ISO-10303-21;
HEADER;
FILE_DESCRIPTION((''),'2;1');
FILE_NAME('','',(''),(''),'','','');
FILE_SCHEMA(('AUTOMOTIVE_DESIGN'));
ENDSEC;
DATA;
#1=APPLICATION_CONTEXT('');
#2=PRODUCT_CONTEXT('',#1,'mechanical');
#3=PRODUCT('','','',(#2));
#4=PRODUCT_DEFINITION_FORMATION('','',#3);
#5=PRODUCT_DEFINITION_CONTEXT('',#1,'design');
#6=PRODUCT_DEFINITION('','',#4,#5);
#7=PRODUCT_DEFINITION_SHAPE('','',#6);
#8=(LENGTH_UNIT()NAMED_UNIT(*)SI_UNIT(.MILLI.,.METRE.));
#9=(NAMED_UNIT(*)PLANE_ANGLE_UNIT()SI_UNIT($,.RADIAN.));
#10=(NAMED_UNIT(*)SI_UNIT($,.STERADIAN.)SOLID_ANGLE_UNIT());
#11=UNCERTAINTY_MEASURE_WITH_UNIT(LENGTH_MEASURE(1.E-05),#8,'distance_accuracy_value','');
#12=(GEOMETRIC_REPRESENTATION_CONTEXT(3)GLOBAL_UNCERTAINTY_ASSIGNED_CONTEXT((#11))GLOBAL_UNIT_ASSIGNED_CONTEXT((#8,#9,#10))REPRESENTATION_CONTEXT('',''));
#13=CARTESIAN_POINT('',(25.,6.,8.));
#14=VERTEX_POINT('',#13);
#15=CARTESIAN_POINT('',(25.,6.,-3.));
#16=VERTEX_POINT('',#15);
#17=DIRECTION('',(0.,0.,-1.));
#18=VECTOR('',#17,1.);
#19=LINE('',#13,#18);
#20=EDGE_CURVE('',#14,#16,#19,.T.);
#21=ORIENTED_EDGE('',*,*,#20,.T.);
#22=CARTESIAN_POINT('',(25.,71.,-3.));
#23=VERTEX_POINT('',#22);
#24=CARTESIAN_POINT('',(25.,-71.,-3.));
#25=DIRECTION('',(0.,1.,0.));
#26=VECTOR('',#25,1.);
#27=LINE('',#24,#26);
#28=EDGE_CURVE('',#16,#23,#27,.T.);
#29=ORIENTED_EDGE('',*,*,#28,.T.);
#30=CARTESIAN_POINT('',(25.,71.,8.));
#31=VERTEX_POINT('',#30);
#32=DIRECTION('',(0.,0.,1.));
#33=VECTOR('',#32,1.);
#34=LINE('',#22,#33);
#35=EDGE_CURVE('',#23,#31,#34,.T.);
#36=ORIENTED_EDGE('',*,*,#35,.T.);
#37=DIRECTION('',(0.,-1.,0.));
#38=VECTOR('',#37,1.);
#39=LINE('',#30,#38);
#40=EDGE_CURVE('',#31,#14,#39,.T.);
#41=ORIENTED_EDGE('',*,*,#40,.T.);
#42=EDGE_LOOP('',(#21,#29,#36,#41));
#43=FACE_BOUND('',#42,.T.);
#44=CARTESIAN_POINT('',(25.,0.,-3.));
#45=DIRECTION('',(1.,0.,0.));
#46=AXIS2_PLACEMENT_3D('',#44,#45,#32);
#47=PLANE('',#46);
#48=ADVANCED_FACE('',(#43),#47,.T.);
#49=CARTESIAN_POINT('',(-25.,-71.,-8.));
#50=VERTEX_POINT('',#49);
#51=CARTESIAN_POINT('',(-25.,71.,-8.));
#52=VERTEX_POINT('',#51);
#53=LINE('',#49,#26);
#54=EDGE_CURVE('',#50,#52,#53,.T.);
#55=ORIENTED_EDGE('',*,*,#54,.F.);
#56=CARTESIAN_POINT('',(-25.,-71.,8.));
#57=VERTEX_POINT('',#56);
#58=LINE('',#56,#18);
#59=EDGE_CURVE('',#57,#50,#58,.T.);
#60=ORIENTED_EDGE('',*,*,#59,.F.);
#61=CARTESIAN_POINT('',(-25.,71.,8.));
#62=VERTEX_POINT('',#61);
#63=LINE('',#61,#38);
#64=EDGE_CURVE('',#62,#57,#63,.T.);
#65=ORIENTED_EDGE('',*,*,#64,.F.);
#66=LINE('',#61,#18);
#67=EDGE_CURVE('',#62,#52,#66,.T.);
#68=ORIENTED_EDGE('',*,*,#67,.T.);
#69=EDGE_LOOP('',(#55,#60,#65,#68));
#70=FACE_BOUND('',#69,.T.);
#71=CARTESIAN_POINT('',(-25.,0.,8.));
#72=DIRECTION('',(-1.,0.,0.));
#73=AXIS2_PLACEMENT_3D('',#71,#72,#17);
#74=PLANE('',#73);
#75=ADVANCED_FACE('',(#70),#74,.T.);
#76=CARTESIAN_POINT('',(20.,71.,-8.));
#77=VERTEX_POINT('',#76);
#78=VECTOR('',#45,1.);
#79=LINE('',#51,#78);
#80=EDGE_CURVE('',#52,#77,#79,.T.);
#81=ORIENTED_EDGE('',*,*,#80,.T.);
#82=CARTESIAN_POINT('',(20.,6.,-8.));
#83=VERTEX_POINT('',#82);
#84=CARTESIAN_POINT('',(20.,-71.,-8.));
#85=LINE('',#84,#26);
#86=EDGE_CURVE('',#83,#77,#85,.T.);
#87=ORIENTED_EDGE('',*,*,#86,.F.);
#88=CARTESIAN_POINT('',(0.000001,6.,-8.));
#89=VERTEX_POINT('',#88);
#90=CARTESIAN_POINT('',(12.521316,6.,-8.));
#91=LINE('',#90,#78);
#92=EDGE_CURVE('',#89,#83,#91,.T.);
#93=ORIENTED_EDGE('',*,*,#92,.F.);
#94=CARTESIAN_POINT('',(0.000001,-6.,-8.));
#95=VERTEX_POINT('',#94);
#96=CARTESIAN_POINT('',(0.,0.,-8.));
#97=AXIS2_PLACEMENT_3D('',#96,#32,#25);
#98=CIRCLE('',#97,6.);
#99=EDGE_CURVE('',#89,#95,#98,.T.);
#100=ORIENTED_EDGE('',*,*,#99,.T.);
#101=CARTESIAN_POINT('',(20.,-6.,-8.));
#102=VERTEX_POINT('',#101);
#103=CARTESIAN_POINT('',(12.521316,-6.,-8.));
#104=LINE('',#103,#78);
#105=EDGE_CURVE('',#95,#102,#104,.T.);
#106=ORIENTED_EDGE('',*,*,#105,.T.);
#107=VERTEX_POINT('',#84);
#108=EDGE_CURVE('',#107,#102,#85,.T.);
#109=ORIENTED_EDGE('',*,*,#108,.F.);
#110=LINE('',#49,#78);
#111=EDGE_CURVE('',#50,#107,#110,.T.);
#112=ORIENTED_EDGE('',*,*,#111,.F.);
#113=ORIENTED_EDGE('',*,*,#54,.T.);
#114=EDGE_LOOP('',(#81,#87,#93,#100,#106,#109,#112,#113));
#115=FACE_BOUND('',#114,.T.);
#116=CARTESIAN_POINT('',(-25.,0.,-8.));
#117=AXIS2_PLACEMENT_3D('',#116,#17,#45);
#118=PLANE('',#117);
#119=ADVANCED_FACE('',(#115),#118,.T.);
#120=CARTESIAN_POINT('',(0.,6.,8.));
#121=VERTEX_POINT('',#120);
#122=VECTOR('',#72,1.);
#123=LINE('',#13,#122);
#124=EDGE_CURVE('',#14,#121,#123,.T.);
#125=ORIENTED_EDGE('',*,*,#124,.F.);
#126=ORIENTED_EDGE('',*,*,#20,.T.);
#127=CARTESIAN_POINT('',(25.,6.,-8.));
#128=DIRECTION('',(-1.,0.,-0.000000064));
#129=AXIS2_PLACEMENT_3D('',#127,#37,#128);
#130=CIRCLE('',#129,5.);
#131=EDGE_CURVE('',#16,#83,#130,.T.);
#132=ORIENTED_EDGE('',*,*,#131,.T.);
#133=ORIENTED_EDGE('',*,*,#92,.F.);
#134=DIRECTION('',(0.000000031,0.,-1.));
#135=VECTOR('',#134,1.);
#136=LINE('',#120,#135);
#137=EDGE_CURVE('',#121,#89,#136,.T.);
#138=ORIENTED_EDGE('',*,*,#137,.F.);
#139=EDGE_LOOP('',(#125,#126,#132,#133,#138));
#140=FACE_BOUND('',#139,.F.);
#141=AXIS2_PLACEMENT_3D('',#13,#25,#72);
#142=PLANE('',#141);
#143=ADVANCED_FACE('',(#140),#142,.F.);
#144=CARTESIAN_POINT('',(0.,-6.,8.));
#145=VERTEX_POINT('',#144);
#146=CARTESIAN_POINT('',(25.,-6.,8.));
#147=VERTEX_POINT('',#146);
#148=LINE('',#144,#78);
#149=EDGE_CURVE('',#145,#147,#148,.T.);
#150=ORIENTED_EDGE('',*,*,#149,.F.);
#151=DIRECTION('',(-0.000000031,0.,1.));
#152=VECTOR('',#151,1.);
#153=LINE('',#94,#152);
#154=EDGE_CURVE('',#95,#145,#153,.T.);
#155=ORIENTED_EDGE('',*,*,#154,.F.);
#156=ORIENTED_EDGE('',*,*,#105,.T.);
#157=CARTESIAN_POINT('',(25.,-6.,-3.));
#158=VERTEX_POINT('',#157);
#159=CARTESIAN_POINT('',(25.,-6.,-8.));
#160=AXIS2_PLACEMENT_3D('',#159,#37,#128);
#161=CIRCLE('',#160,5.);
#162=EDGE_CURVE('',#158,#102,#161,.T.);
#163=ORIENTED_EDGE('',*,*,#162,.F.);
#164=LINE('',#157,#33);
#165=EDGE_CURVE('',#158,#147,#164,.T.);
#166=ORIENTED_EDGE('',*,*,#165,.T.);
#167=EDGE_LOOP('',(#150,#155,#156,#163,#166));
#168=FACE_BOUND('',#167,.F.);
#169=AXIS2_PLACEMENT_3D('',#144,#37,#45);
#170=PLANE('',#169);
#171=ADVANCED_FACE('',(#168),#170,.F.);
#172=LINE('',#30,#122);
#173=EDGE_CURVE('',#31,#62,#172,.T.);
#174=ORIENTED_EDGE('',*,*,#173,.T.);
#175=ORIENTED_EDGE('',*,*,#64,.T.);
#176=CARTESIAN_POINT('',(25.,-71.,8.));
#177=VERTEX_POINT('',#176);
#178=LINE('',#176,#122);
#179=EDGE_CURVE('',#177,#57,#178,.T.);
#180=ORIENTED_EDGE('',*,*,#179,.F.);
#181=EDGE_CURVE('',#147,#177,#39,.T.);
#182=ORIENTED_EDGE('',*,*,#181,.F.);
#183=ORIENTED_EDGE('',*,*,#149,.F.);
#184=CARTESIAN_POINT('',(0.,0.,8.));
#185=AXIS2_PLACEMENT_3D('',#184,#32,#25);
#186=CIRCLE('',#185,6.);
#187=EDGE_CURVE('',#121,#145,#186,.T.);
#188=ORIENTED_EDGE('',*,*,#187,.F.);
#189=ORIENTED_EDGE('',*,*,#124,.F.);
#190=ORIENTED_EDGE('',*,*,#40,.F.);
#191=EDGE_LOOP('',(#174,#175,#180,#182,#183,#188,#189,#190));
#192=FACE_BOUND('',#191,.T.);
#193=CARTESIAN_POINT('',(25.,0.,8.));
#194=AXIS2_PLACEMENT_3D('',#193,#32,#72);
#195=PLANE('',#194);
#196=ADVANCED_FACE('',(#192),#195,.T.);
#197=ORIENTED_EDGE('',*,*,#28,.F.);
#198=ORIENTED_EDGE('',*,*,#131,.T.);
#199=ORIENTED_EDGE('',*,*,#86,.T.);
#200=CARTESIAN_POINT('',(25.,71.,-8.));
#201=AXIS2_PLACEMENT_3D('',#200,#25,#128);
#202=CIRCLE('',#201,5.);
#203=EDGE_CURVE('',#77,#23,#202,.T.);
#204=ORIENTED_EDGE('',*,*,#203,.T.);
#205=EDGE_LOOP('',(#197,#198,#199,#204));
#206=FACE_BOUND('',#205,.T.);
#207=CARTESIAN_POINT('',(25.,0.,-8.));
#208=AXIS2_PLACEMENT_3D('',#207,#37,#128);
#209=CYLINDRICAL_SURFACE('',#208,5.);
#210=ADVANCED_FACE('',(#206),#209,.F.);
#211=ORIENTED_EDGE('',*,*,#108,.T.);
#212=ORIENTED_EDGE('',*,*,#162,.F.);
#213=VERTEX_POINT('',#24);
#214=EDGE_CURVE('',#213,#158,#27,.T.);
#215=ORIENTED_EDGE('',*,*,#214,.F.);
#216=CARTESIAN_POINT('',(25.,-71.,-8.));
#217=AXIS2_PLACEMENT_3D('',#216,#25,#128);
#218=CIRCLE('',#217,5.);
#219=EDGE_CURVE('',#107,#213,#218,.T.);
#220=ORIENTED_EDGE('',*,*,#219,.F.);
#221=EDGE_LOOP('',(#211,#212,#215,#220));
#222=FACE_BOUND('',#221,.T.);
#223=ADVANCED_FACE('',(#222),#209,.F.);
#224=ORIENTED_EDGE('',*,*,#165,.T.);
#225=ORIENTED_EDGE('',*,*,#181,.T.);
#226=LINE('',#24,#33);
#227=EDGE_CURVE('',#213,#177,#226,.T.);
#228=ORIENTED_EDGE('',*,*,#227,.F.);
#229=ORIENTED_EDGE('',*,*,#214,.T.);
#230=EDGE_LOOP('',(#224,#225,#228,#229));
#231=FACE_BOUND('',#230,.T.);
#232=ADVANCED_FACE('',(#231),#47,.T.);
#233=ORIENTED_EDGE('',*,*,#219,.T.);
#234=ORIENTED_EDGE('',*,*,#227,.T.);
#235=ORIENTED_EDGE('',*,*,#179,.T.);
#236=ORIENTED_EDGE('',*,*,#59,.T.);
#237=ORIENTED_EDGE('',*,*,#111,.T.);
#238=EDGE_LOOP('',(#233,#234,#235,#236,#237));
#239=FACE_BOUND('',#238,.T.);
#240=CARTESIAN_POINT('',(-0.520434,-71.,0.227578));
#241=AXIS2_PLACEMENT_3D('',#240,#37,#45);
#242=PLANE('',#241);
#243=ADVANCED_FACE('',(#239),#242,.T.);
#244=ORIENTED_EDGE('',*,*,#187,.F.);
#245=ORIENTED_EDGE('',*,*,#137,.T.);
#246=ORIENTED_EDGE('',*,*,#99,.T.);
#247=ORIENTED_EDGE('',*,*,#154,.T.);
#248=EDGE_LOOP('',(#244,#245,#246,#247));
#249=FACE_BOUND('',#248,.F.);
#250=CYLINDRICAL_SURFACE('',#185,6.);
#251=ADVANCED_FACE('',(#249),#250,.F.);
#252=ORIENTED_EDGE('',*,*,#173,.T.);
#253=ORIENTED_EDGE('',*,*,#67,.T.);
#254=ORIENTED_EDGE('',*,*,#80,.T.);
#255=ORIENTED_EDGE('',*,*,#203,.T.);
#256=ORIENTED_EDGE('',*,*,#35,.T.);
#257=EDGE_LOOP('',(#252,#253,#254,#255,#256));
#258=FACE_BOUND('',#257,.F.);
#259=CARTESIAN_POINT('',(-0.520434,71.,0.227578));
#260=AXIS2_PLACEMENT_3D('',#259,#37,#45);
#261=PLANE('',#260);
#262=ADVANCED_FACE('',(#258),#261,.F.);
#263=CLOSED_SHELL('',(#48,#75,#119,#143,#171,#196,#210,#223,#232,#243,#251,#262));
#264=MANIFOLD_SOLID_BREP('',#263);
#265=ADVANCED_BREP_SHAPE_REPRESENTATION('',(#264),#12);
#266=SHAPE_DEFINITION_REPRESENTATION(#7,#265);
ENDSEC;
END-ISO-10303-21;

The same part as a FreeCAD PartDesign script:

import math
import FreeCAD as App
import Part
import Sketcher

V = App.Vector

doc = App.newDocument("Part")
body = doc.addObject("PartDesign::Body", "Body")

# Sketch on XZ plane
sketch1 = body.newObject("Sketcher::SketchObject", "Sketch")
sketch1.AttachmentSupport = (doc.getObject("XZ_Plane"), [""])
sketch1.MapMode = "FlatFace"
sketch1.addGeometry([
    Part.LineSegment(V(25, -3, 0), V(25, 8, 0)),  # 0
    Part.LineSegment(V(25, 8, 0), V(-25, 8, 0)),  # 1
    Part.LineSegment(V(-25, 8, 0), V(-25, -8, 0)),  # 2
    Part.LineSegment(V(-25, -8, 0), V(20, -8, 0)),  # 3
    Part.ArcOfCircle(Part.Circle(V(25, -8, 0), V(0, 0, 1), 5), math.radians(89.999996), math.radians(180.000004)),  # 4
], False)
sketch1.addConstraint([
    Sketcher.Constraint("Coincident", 0, 2, 1, 1),
    Sketcher.Constraint("Coincident", 1, 2, 2, 1),
    Sketcher.Constraint("Coincident", 2, 2, 3, 1),
    Sketcher.Constraint("Coincident", 3, 2, 4, 2),
    Sketcher.Constraint("Coincident", 4, 1, 0, 1),
    Sketcher.Constraint("Vertical", 0),
    Sketcher.Constraint("Horizontal", 1),
    Sketcher.Constraint("Vertical", 2),
    Sketcher.Constraint("Horizontal", 3),
    Sketcher.Constraint("Symmetric", 0, 2, 2, 2, -1, 1),
    Sketcher.Constraint("Horizontal", 4, 3, 2, 2),
    Sketcher.Constraint("Vertical", 4, 3, 0, 2),
    Sketcher.Constraint("Radius", 4, 5.0),
    Sketcher.Constraint("DistanceX", 1, 2, 1, 1, 50.0),
    Sketcher.Constraint("DistanceY", 0, 1, 0, 2, 11.0),
])
pad1 = body.newObject("PartDesign::Pad", "Pad")
pad1.Profile = sketch1
pad1.Length = 142
pad1.Midplane = True

# Sketch on XY plane
sketch2 = body.newObject("Sketcher::SketchObject", "Sketch001")
sketch2.AttachmentSupport = (doc.getObject("XY_Plane"), [""])
sketch2.MapMode = "FlatFace"
sketch2.AttachmentOffset = App.Placement(V(0, 0, 8), App.Rotation())
sketch2.addGeometry([
    Part.ArcOfCircle(Part.Circle(V(0.000001, -0.000001, 0), V(0, 0, 1), 5.999999), math.radians(-90.00001), math.radians(0.00001)),
    Part.ArcOfCircle(Part.Circle(V(0.000001, 0.000001, 0), V(0, 0, 1), 5.999999), math.radians(-0.00001), math.radians(90.00001)),
    Part.ArcOfCircle(Part.Circle(V(0, 0, 0), V(0, 0, 1), 6), math.radians(90), math.radians(270)),
], False)
sketch2.addConstraint([
    Sketcher.Constraint("Tangent", 0, 2, 1, 1),
    Sketcher.Constraint("Tangent", 1, 2, 2, 1),
    Sketcher.Constraint("Tangent", 2, 2, 0, 1),
    Sketcher.Constraint("Coincident", 0, 3, -1, 1),
    Sketcher.Constraint("PointOnObject", 0, 2, -1),
    Sketcher.Constraint("PointOnObject", 1, 2, -2),
    Sketcher.Constraint("PointOnObject", 2, 2, -2),
    Sketcher.Constraint("Radius", 0, 5.999999),
])
pocket1 = body.newObject("PartDesign::Pocket", "Pocket")
pocket1.Profile = sketch2
pocket1.Length = 16

# Sketch on XY plane
sketch3 = body.newObject("Sketcher::SketchObject", "Sketch002")
sketch3.AttachmentSupport = (doc.getObject("XY_Plane"), [""])
sketch3.MapMode = "FlatFace"
sketch3.AttachmentOffset = App.Placement(V(0, 0, 8), App.Rotation())
sketch3.addGeometry([
    Part.ArcOfCircle(Part.Circle(V(0.000001, 0.000001, 0), V(0, 0, 1), 5.999999), math.radians(-0.00001), math.radians(90.00001)),  # 0
    Part.ArcOfCircle(Part.Circle(V(0.000001, -0.000001, 0), V(0, 0, 1), 5.999999), math.radians(-90.00001), math.radians(0.00001)),  # 1
    Part.LineSegment(V(0, -6, 0), V(25, -6, 0)),  # 2
    Part.LineSegment(V(25, -6, 0), V(25, 6, 0)),  # 3
    Part.LineSegment(V(25, 6, 0), V(0, 6, 0)),  # 4
], False)
sketch3.addConstraint([
    Sketcher.Constraint("Tangent", 0, 1, 1, 2),
    Sketcher.Constraint("Tangent", 1, 1, 2, 1),
    Sketcher.Constraint("Coincident", 2, 2, 3, 1),
    Sketcher.Constraint("Coincident", 3, 2, 4, 1),
    Sketcher.Constraint("Tangent", 4, 2, 0, 2),
    Sketcher.Constraint("Horizontal", 2),
    Sketcher.Constraint("Vertical", 3),
    Sketcher.Constraint("Horizontal", 4),
    Sketcher.Constraint("Coincident", 0, 3, -1, 1),
    Sketcher.Constraint("Equal", 0, 1),
    Sketcher.Constraint("PointOnObject", 0, 1, -1),
    Sketcher.Constraint("Radius", 0, 5.999999),
    Sketcher.Constraint("DistanceX", 2, 1, 2, 2, 25.0),
])
pocket2 = body.newObject("PartDesign::Pocket", "Pocket001")
pocket2.Profile = sketch3
pocket2.Length = 6

# Sketch on XY plane
sketch4 = body.newObject("Sketcher::SketchObject", "Sketch003")
sketch4.AttachmentSupport = (doc.getObject("XY_Plane"), [""])
sketch4.MapMode = "FlatFace"
sketch4.AttachmentOffset = App.Placement(V(0, 0, -8), App.Rotation())
sketch4.addGeometry([
    Part.LineSegment(V(0, -6, 0), V(0, 6, 0)),
    Part.LineSegment(V(0, 6, 0), V(25.042631, 6, 0)),
    Part.LineSegment(V(25.042631, 6, 0), V(25.042631, -6, 0)),
    Part.LineSegment(V(25.042631, -6, 0), V(0, -6, 0)),
], False)
sketch4.addConstraint([
    Sketcher.Constraint("Coincident", 0, 2, 1, 1),
    Sketcher.Constraint("Coincident", 1, 2, 2, 1),
    Sketcher.Constraint("Coincident", 2, 2, 3, 1),
    Sketcher.Constraint("Coincident", 3, 2, 0, 1),
    Sketcher.Constraint("Vertical", 0),
    Sketcher.Constraint("Horizontal", 1),
    Sketcher.Constraint("Vertical", 2),
    Sketcher.Constraint("Horizontal", 3),
    Sketcher.Constraint("Symmetric", 0, 2, 3, 2, -1, 1),
    Sketcher.Constraint("DistanceY", 0, 1, 0, 2, 12.0),
    Sketcher.Constraint("DistanceX", 1, 1, 1, 2, 25.042631),
])
pocket3 = body.newObject("PartDesign::Pocket", "Pocket002")
pocket3.Profile = sketch4
pocket3.Length = 12.4
pocket3.Reversed = True

doc.recompute()
